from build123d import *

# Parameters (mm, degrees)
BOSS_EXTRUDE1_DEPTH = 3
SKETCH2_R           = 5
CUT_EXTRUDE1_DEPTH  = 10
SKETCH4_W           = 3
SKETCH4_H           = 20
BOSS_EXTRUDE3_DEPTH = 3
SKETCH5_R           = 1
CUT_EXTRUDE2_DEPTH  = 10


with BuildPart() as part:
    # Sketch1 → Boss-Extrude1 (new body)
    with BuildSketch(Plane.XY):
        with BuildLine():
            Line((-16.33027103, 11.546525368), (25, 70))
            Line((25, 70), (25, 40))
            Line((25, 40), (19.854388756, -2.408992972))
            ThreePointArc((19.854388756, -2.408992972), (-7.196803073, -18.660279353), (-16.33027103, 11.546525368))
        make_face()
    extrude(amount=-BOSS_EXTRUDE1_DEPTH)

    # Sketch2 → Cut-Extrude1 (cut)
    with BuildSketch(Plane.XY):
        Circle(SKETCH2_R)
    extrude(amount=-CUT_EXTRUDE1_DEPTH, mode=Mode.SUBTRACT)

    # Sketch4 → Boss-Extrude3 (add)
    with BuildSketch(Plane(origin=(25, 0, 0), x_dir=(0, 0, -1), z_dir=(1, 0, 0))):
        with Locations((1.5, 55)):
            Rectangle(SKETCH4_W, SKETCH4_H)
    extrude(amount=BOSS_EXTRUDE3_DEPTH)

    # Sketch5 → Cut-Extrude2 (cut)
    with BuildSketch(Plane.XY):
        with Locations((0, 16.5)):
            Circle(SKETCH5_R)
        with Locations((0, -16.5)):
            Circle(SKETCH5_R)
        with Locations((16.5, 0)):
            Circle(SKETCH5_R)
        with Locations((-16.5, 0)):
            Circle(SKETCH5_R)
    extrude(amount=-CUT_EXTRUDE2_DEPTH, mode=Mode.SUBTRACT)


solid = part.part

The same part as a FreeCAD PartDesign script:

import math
import FreeCAD as App
import Part
import Sketcher

V = App.Vector

doc = App.newDocument("Part")
body = doc.addObject("PartDesign::Body", "Body")

# Sketch on XY plane
sketch1 = body.newObject("Sketcher::SketchObject", "Sketch")
sketch1.AttachmentSupport = (doc.getObject("XY_Plane"), [""])
sketch1.MapMode = "FlatFace"
sketch1.addGeometry(Part.LineSegment(V(25, 70, 0), V(-16, 12, 0)), False)
sketch1.addGeometry(Part.ArcOfCircle(Part.Circle(V(0, 0, 0), V(0, 0, 1), 20), math.radians(145), math.radians(353)), False)
sketch1.addGeometry(Part.LineSegment(V(20, -2, 0), V(25, 40, 0)), False)
sketch1.addGeometry(Part.LineSegment(V(25, 40, 0), V(25, 70, 0)), False)
sketch1.addConstraint(Sketcher.Constraint("Tangent", 0, 2, 1, 1))
sketch1.addConstraint(Sketcher.Constraint("Tangent", 1, 2, 2, 1))
sketch1.addConstraint(Sketcher.Constraint("Coincident", 2, 2, 3, 1))
sketch1.addConstraint(Sketcher.Constraint("Coincident", 3, 2, 0, 1))
sketch1.addConstraint(Sketcher.Constraint("Vertical", 3))
sketch1.addConstraint(Sketcher.Constraint("Coincident", 1, 3, -1, 1))
sketch1.addConstraint(Sketcher.Constraint("Radius", 1, 20.0))
sketch1.addConstraint(Sketcher.Constraint("DistanceY", 3, 1, 3, 2, 30.0))
sketch1.addConstraint(Sketcher.Constraint("DistanceX", -1, 1, 2, 2, 25.0))
sketch1.addConstraint(Sketcher.Constraint("DistanceY", -1, 1, 2, 2, 40.0))
pad1 = body.newObject("PartDesign::Pad", "Pad")
pad1.Profile = sketch1
pad1.Length = 3
pad1.Reversed = True

# Sketch on XY plane
sketch2 = body.newObject("Sketcher::SketchObject", "Sketch001")
sketch2.AttachmentSupport = (doc.getObject("XY_Plane"), [""])
sketch2.MapMode = "FlatFace"
sketch2.addGeometry(Part.Circle(V(0, 0, 0), V(0, 0, 1), 5), False)
sketch2.addConstraint(Sketcher.Constraint("Coincident", 0, 3, -1, 1))
sketch2.addConstraint(Sketcher.Constraint("Diameter", 0, 10.0))
pocket1 = body.newObject("PartDesign::Pocket", "Pocket")
pocket1.Profile = sketch2
pocket1.Length = 10

# Sketch on YZ plane
sketch3 = body.newObject("Sketcher::SketchObject", "Sketch002")
sketch3.AttachmentSupport = (doc.getObject("YZ_Plane"), [""])
sketch3.MapMode = "FlatFace"
sketch3.AttachmentOffset = App.Placement(V(0, 0, 25), App.Rotation())
sketch3.addGeometry(Part.LineSegment(V(65, 0, 0), V(45, 0, 0)), False)
sketch3.addGeometry(Part.LineSegment(V(45, 0, 0), V(45, -3, 0)), False)
sketch3.addGeometry(Part.LineSegment(V(45, -3, 0), V(65, -3, 0)), False)
sketch3.addGeometry(Part.LineSegment(V(65, -3, 0), V(65, 0, 0)), False)
sketch3.addConstraint(Sketcher.Constraint("Coincident", 0, 2, 1, 1))
sketch3.addConstraint(Sketcher.Constraint("Coincident", 1, 2, 2, 1))
sketch3.addConstraint(Sketcher.Constraint("Coincident", 2, 2, 3, 1))
sketch3.addConstraint(Sketcher.Constraint("Coincident", 3, 2, 0, 1))
sketch3.addConstraint(Sketcher.Constraint("Horizontal", 0))
sketch3.addConstraint(Sketcher.Constraint("Vertical", 1))
sketch3.addConstraint(Sketcher.Constraint("Horizontal", 2))
sketch3.addConstraint(Sketcher.Constraint("Vertical", 3))
sketch3.addConstraint(Sketcher.Constraint("PointOnObject", 0, 2, -1))
sketch3.addConstraint(Sketcher.Constraint("DistanceX", 0, 2, 0, 1, 20.0))
sketch3.addConstraint(Sketcher.Constraint("DistanceY", 1, 2, 1, 1, 3.0))
sketch3.addConstraint(Sketcher.Constraint("DistanceX", -1, 1, 0, 2, 45.0))
pad2 = body.newObject("PartDesign::Pad", "Pad001")
pad2.Profile = sketch3
pad2.Length = 3

# Sketch on XY plane
sketch4 = body.newObject("Sketcher::SketchObject", "Sketch003")
sketch4.AttachmentSupport = (doc.getObject("XY_Plane"), [""])
sketch4.MapMode = "FlatFace"
sketch4.addGeometry(Part.Circle(V(0, 16.5, 0), V(0, 0, 1), 1), False)
sketch4.addGeometry(Part.Circle(V(0, -16.5, 0), V(0, 0, 1), 1), False)
sketch4.addGeometry(Part.Circle(V(16.5, 0, 0), V(0, 0, 1), 1), False)
sketch4.addGeometry(Part.Circle(V(-16.5, 0, 0), V(0, 0, 1), 1), False)
sketch4.addConstraint(Sketcher.Constraint("Equal", 0, 1))
sketch4.addConstraint(Sketcher.Constraint("Equal", 1, 2))
sketch4.addConstraint(Sketcher.Constraint("Equal", 2, 3))
sketch4.addConstraint(Sketcher.Constraint("Symmetric", 0, 3, 1, 3, -1, 1))
sketch4.addConstraint(Sketcher.Constraint("Symmetric", 2, 3, 3, 3, -1, 1))
sketch4.addConstraint(Sketcher.Constraint("PointOnObject", 0, 3, -2))
sketch4.addConstraint(Sketcher.Constraint("PointOnObject", 2, 3, -1))
sketch4.addConstraint(Sketcher.Constraint("Diameter", 0, 2.0))
sketch4.addConstraint(Sketcher.Constraint("DistanceY", 1, 3, 0, 3, 33.0))
sketch4.addConstraint(Sketcher.Constraint("DistanceX", 3, 3, 2, 3, 33.0))
pocket2 = body.newObject("PartDesign::Pocket", "Pocket001")
pocket2.Profile = sketch4
pocket2.Length = 10

doc.recompute()
